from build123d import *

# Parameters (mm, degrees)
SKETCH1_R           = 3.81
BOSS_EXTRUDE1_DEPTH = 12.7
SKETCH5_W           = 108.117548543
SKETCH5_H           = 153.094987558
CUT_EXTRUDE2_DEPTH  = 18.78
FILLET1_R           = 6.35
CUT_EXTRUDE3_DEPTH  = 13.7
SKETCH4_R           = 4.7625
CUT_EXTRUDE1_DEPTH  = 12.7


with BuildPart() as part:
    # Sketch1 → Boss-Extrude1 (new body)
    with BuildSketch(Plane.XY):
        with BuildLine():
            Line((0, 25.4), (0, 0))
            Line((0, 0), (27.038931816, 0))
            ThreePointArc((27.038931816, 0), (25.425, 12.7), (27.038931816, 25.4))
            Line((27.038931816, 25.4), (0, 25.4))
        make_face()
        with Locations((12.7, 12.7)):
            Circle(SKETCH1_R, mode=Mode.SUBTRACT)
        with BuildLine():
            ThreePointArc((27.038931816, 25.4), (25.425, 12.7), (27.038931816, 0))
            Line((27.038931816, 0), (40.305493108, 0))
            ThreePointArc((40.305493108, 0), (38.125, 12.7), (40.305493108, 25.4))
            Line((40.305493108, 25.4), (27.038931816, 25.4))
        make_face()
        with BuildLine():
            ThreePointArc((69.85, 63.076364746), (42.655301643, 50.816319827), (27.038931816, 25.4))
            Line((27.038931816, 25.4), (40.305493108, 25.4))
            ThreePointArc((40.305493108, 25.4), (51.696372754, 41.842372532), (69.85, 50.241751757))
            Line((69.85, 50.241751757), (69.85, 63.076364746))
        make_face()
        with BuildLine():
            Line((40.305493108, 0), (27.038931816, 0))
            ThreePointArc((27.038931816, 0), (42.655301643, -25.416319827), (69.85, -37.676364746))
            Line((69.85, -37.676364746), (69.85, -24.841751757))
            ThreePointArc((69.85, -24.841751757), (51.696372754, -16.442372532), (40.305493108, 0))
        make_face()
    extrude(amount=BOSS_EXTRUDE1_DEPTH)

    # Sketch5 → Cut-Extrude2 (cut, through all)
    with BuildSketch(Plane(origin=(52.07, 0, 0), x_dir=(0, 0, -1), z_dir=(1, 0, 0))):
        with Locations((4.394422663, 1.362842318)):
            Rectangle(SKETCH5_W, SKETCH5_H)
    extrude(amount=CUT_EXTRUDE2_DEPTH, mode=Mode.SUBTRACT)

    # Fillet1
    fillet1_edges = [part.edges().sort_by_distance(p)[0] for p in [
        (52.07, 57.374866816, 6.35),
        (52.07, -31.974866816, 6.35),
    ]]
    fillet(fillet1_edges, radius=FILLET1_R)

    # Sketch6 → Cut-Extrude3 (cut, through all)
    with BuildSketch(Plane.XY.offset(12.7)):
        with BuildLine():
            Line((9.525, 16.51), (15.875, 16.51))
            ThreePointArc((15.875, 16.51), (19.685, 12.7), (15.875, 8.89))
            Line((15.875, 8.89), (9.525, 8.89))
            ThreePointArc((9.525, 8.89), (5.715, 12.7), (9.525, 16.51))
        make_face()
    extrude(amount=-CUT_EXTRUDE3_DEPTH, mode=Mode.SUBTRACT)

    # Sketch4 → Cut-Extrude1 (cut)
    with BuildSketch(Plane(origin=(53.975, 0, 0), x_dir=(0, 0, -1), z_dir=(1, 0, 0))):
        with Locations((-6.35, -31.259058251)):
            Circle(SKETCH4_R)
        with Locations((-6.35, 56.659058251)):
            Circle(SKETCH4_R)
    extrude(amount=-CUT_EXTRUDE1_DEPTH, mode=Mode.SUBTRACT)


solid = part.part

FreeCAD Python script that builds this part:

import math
import FreeCAD as App
import Part
import Sketcher
Q = App.Units.Quantity


def edges_at(feature, points):
    """Names of the edges that pass closest to the given points."""
    edges = feature.Shape.Edges
    near = lambda p: min(range(len(edges)), key=lambda i: edges[i].distToShape(Part.Vertex(*p))[0])
    return sorted({f"Edge{near(p) + 1}" for p in points})


def add_polygon(sketch, points):
    """Adds a closed chain of lines whose ends are joined by coincident constraints."""
    first, n = sketch.GeometryCount, len(points)
    for a, b in zip(points, points[1:] + points[:1]):
        sketch.addGeometry(Part.LineSegment(App.Vector(*a, 0), App.Vector(*b, 0)), False)
    for i in range(n):
        sketch.addConstraint(Sketcher.Constraint("Coincident", first + i, 2, first + (i + 1) % n, 1))

doc = App.newDocument("Part")
body = doc.addObject("PartDesign::Body", "Body")

# Sketch on XY plane
sketch1 = body.newObject("Sketcher::SketchObject", "Sketch")
sketch1.AttachmentSupport = (doc.getObject("XY_Plane"), [""])
sketch1.MapMode = "FlatFace"
sketch1.addGeometry(Part.LineSegment(App.Vector(0, 25.4, 0), App.Vector(0, 0, 0)), False)
sketch1.addGeometry(Part.LineSegment(App.Vector(0, 0, 0), App.Vector(27, 0, 0)), False)
sketch1.addGeometry(Part.ArcOfCircle(Part.Circle(App.Vector(76.2, 12.7, 0), App.Vector(0, 0, 1), 50.8), math.radians(-166), math.radians(-97)), False)
sketch1.addGeometry(Part.LineSegment(App.Vector(69.8, -37.7, 0), App.Vector(69.8, -24.8, 0)), False)
sketch1.addGeometry(Part.ArcOfCircle(Part.Circle(App.Vector(76.2, 12.7, 0), App.Vector(0, 0, 1), 38.1), math.radians(-161), math.radians(-100)), False)
sketch1.addGeometry(Part.ArcOfCircle(Part.Circle(App.Vector(76.2, 12.7, 0), App.Vector(0, 0, 1), 38.1), math.radians(161), math.radians(199)), False)
sketch1.addGeometry(Part.ArcOfCircle(Part.Circle(App.Vector(76.2, 12.7, 0), App.Vector(0, 0, 1), 38.1), math.radians(100), math.radians(161)), False)
sketch1.addGeometry(Part.LineSegment(App.Vector(69.8, 50.2, 0), App.Vector(69.8, 63.1, 0)), False)
sketch1.addGeometry(Part.ArcOfCircle(Part.Circle(App.Vector(76.2, 12.7, 0), App.Vector(0, 0, 1), 50.8), math.radians(97), math.radians(166)), False)
sketch1.addGeometry(Part.LineSegment(App.Vector(27, 25.4, 0), App.Vector(0, 25.4, 0)), False)
sketch1.addGeometry(Part.Circle(App.Vector(12.7, 12.7, 0), App.Vector(0, 0, 1), 3.8), False)
sketch1.addConstraint(Sketcher.Constraint("Coincident", 0, 2, 1, 1))
sketch1.addConstraint(Sketcher.Constraint("Coincident", 1, 2, 2, 1))
sketch1.addConstraint(Sketcher.Constraint("Coincident", 2, 2, 3, 1))
sketch1.addConstraint(Sketcher.Constraint("Coincident", 3, 2, 4, 2))
sketch1.addConstraint(Sketcher.Constraint("Tangent", 4, 1, 5, 2))
sketch1.addConstraint(Sketcher.Constraint("Tangent", 5, 1, 6, 2))
sketch1.addConstraint(Sketcher.Constraint("Coincident", 6, 1, 7, 1))
sketch1.addConstraint(Sketcher.Constraint("Coincident", 7, 2, 8, 1))
sketch1.addConstraint(Sketcher.Constraint("Coincident", 8, 2, 9, 1))
sketch1.addConstraint(Sketcher.Constraint("Coincident", 9, 2, 0, 1))
sketch1.addConstraint(Sketcher.Constraint("Vertical", 0))
sketch1.addConstraint(Sketcher.Constraint("Horizontal", 1))
sketch1.addConstraint(Sketcher.Constraint("Vertical", 3))
sketch1.addConstraint(Sketcher.Constraint("Vertical", 7))
sketch1.addConstraint(Sketcher.Constraint("Horizontal", 9))
sketch1.addConstraint(Sketcher.Constraint("Coincident", 0, 2, -1, 1))
sketch1.addConstraint(Sketcher.Constraint("Coincident", 4, 3, 2, 3))
sketch1.addConstraint(Sketcher.Constraint("Coincident", 6, 3, 2, 3))
sketch1.addConstraint(Sketcher.Constraint("Coincident", 8, 3, 2, 3))
sketch1.addConstraint(Sketcher.Constraint("Equal", 2, 8))
sketch1.addConstraint(Sketcher.Constraint("PointOnObject", 4, 1, -1))
sketch1.addConstraint(Sketcher.Constraint("Horizontal", 8, 3, 10, 3))
sketch1.addConstraint(Sketcher.Constraint("Horizontal", 5, 1, 8, 2))
sketch1.addConstraint(Sketcher.Constraint("Vertical", 4, 1, 5, 1))
sketch1.addConstraint(Sketcher.Constraint("Vertical", 3, 2, 6, 1))
sketch1.addConstraint(Sketcher.Constraint("Diameter", 10, Q("0.3 in")))
sketch1.addConstraint(Sketcher.Constraint("DistanceY", 0, 2, 0, 1, Q("1 in")))
sketch1.addConstraint(Sketcher.Constraint("DistanceX", -1, 1, 2, 3, Q("3 in")))
sketch1.addConstraint(Sketcher.Constraint("DistanceX", -1, 1, 10, 3, Q("0.5 in")))
sketch1.addConstraint(Sketcher.Constraint("DistanceX", -1, 1, 2, 2, Q("2.75 in")))
sketch1.addConstraint(Sketcher.Constraint("Radius", 2, 50.775))
sketch1.addConstraint(Sketcher.Constraint("Radius", 4, 38.075))
pad1 = body.newObject("PartDesign::Pad", "Pad")
pad1.Profile = sketch1
pad1.Length = Q("0.5 in")

# Sketch on YZ plane
sketch2 = body.newObject("Sketcher::SketchObject", "Sketch001")
sketch2.AttachmentSupport = (doc.getObject("YZ_Plane"), [""])
sketch2.MapMode = "FlatFace"
sketch2.AttachmentOffset = App.Placement(App.Vector(0, 0, 2.05 * 25.4), App.Rotation())
add_polygon(sketch2, [(78, 50), (-75, 50), (-75, -58), (78, -58)])  # lines 0-3
sketch2.addConstraint(Sketcher.Constraint("Horizontal", 0))
sketch2.addConstraint(Sketcher.Constraint("Vertical", 1))
sketch2.addConstraint(Sketcher.Constraint("Horizontal", 2))
sketch2.addConstraint(Sketcher.Constraint("Vertical", 3))
sketch2.addConstraint(Sketcher.Constraint("DistanceY", 1, 2, 1, 1, 108.117549))
sketch2.addConstraint(Sketcher.Constraint("DistanceX", 0, 2, 0, 1, 153.094988))
sketch2.addConstraint(Sketcher.Constraint("DistanceX", 0, 2, -1, 1, 75.184651))
sketch2.addConstraint(Sketcher.Constraint("DistanceY", -1, 1, 0, 2, 49.664352))
pocket1 = body.newObject("PartDesign::Pocket", "Pocket")
pocket1.Profile = sketch2
pocket1.Type = "ThroughAll"
pocket1.Reversed = True
doc.recompute()

fillet = body.newObject("PartDesign::Fillet", "Fillet")
fillet.Base = (pocket1, edges_at(pocket1, [(52.07, 57.375, 6.35), (52.07, -31.975, 6.35)]))
fillet.Radius = Q("0.25 in")

# Sketch on XY plane
sketch3 = body.newObject("Sketcher::SketchObject", "Sketch002")
sketch3.AttachmentSupport = (doc.getObject("XY_Plane"), [""])
sketch3.MapMode = "FlatFace"
sketch3.AttachmentOffset = App.Placement(App.Vector(0, 0, 0.5 * 25.4), App.Rotation())
sketch3.addGeometry(Part.LineSegment(App.Vector(15.9, 16.5, 0), App.Vector(9.5, 16.5, 0)), False)
sketch3.addGeometry(Part.ArcOfCircle(Part.Circle(App.Vector(9.5, 12.7, 0), App.Vector(0, 0, 1), 3.8), math.radians(90), math.radians(270)), False)
sketch3.addGeometry(Part.LineSegment(App.Vector(9.5, 8.9, 0), App.Vector(15.9, 8.9, 0)), False)
sketch3.addGeometry(Part.ArcOfCircle(Part.Circle(App.Vector(15.9, 12.7, 0), App.Vector(0, 0, 1), 3.8), math.radians(-90), math.radians(90)), False)
sketch3.addConstraint(Sketcher.Constraint("Tangent", 0, 2, 1, 1))
sketch3.addConstraint(Sketcher.Constraint("Tangent", 1, 2, 2, 1))
sketch3.addConstraint(Sketcher.Constraint("Tangent", 2, 2, 3, 1))
sketch3.addConstraint(Sketcher.Constraint("Tangent", 3, 2, 0, 1))
sketch3.addConstraint(Sketcher.Constraint("Horizontal", 0))
sketch3.addConstraint(Sketcher.Constraint("Horizontal", 2))
sketch3.addConstraint(Sketcher.Constraint("Radius", 1, Q("0.15 in")))
sketch3.addConstraint(Sketcher.Constraint("DistanceX", 0, 2, 0, 1, Q("0.25 in")))
sketch3.addConstraint(Sketcher.Constraint("DistanceY", -1, 1, 1, 3, Q("0.5 in")))
sketch3.addConstraint(Sketcher.Constraint("DistanceX", -1, 1, 1, 3, Q("0.375 in")))
pocket2 = body.newObject("PartDesign::Pocket", "Pocket001")
pocket2.Profile = sketch3
pocket2.Type = "ThroughAll"

# Sketch on YZ plane
sketch4 = body.newObject("Sketcher::SketchObject", "Sketch003")
sketch4.AttachmentSupport = (doc.getObject("YZ_Plane"), [""])
sketch4.MapMode = "FlatFace"
sketch4.AttachmentOffset = App.Placement(App.Vector(0, 0, 2.125 * 25.4), App.Rotation())
sketch4.addGeometry(Part.Circle(App.Vector(-31.3, 6.3, 0), App.Vector(0, 0, 1), 4.8), False)
sketch4.addGeometry(Part.Circle(App.Vector(56.7, 6.3, 0), App.Vector(0, 0, 1), 4.8), False)
sketch4.addConstraint(Sketcher.Constraint("Equal", 0, 1))
sketch4.addConstraint(Sketcher.Constraint("Horizontal", 0, 3, 1, 3))
sketch4.addConstraint(Sketcher.Constraint("Diameter", 0, Q("0.375 in")))
sketch4.addConstraint(Sketcher.Constraint("DistanceY", -1, 1, 0, 3, Q("0.25 in")))
sketch4.addConstraint(Sketcher.Constraint("DistanceX", 0, 3, -1, 1, 31.259058))
sketch4.addConstraint(Sketcher.Constraint("DistanceX", -1, 1, 1, 3, 56.659058))
pocket3 = body.newObject("PartDesign::Pocket", "Pocket002")
pocket3.Profile = sketch4
pocket3.Length = Q("0.5 in")

doc.recompute()
